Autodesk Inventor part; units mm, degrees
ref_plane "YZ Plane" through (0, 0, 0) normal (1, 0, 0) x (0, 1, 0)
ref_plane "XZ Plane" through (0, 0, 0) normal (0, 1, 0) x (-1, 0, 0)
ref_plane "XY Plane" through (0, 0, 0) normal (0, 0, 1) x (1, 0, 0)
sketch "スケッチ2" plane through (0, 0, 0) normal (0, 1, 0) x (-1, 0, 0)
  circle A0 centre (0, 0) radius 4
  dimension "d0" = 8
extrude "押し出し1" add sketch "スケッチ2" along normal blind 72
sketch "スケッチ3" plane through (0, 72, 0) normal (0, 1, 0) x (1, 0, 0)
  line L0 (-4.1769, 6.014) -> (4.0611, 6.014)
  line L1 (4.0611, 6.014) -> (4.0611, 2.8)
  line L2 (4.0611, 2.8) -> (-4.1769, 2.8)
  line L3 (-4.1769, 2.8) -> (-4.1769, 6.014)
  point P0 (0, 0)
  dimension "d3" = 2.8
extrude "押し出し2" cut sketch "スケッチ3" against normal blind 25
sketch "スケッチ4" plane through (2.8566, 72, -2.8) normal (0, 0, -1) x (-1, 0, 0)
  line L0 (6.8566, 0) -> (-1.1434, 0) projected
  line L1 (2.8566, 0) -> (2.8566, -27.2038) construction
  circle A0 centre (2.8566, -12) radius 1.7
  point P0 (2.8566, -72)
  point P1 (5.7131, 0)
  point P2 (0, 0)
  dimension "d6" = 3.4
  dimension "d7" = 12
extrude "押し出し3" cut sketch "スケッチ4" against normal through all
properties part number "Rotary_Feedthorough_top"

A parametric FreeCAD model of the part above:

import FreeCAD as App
import Part
import Sketcher
from FreeCAD import Vector


def add_polygon(sketch, points):
    """Adds a closed chain of lines whose ends are joined by coincident constraints."""
    first, n = sketch.GeometryCount, len(points)
    for a, b in zip(points, points[1:] + points[:1]):
        sketch.addGeometry(Part.LineSegment(App.Vector(*a, 0), App.Vector(*b, 0)), False)
    for i in range(n):
        sketch.addConstraint(Sketcher.Constraint("Coincident", first + i, 2, first + (i + 1) % n, 1))

doc = App.newDocument("Part")
params = doc.addObject("Spreadsheet::Sheet", "Params")
for row, (alias, value) in enumerate([
    ("sketch1_diameter", "8 mm"),
    ("pad1_length", "72 mm"),
    ("pocket1_length", "25 mm"),
    ("sketch3_diameter", "3.4 mm"),
], start=1):
    params.set(f"A{row}", alias)
    params.set(f"B{row}", "=" + value)
    params.setAlias(f"B{row}", alias)

body = doc.addObject("PartDesign::Body", "Body")

sketch1 = doc.addObject("Sketcher::SketchObject", "Sketch")
body.addObject(sketch1)
sketch1.AttachmentSupport = (doc.XZ_Plane, [""])
sketch1.MapMode = "FlatFace"
sketch1.addGeometry(Part.Circle(Vector(0, 0, 0), Vector(0, 0, 1), 4), False)
sketch1.addConstraint([
    Sketcher.Constraint("Coincident", 0, 3, -1, 1),
    Sketcher.Constraint("Diameter", 0, 8.0),
])
sketch1.setExpression("Constraints[1]", "Params.sketch1_diameter")
pad1 = doc.addObject("PartDesign::Pad", "Pad")
body.addObject(pad1)
pad1.Profile = sketch1
pad1.setExpression("Length", "Params.pad1_length")
pad1.Reversed = True

sketch2 = doc.addObject("Sketcher::SketchObject", "Sketch001")
body.addObject(sketch2)
sketch2.AttachmentSupport = (doc.XZ_Plane, [""])
sketch2.MapMode = "FlatFace"
sketch2.AttachmentOffset = App.Placement(Vector(0, 0, -72), App.Rotation())
add_polygon(sketch2, [(4.1, -6), (-4.2, -6), (-4.2, -2.8), (4.1, -2.8)])
sketch2.addConstraint([
    Sketcher.Constraint("Horizontal", 0),
    Sketcher.Constraint("Vertical", 1),
    Sketcher.Constraint("Horizontal", 2),
    Sketcher.Constraint("Vertical", 3),
    Sketcher.Constraint("DistanceY", 1, 2, -1, 1, 2.8),
    Sketcher.Constraint("DistanceX", 0, 2, 0, 1, 8.238),
    Sketcher.Constraint("DistanceY", 1, 1, 1, 2, 3.214),
    Sketcher.Constraint("DistanceX", 0, 2, -1, 1, 4.177),
])
pocket1 = doc.addObject("PartDesign::Pocket", "Pocket")
body.addObject(pocket1)
pocket1.Profile = sketch2
pocket1.setExpression("Length", "Params.pocket1_length")
pocket1.Reversed = True

sketch3 = doc.addObject("Sketcher::SketchObject", "Sketch002")
body.addObject(sketch3)
sketch3.AttachmentSupport = (doc.XY_Plane, [""])
sketch3.MapMode = "FlatFace"
sketch3.AttachmentOffset = App.Placement(Vector(0, 0, -2.8), App.Rotation())
sketch3.addGeometry(Part.Circle(Vector(0, 60, 0), Vector(0, 0, 1), 1.7), False)
sketch3.addConstraint([
    Sketcher.Constraint("PointOnObject", 0, 3, -2),
    Sketcher.Constraint("Diameter", 0, 3.4),
    Sketcher.Constraint("DistanceY", -1, 1, 0, 3, 60.0),
])
sketch3.setExpression("Constraints[1]", "Params.sketch3_diameter")
pocket2 = doc.addObject("PartDesign::Pocket", "Pocket001")
body.addObject(pocket2)
pocket2.Profile = sketch3
pocket2.Type = "ThroughAll"
pocket2.Reversed = True

doc.recompute()
